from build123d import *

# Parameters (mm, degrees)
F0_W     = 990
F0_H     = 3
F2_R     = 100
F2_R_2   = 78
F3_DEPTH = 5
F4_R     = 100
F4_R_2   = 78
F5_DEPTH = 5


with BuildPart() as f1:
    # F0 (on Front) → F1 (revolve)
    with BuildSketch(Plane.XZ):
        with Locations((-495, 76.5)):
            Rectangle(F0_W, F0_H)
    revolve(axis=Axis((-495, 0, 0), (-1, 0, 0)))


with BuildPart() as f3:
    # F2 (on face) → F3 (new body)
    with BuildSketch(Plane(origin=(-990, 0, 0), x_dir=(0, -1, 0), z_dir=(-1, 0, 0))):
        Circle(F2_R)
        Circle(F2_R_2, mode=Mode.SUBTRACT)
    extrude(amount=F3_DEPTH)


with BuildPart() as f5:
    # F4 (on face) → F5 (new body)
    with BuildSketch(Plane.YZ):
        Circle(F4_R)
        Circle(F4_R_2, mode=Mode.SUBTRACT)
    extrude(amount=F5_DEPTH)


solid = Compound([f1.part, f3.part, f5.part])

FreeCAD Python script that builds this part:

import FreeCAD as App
import Part
import Sketcher


def add_polygon(sketch, points):
    """Adds a closed chain of lines whose ends are joined by coincident constraints."""
    first, n = sketch.GeometryCount, len(points)
    for a, b in zip(points, points[1:] + points[:1]):
        sketch.addGeometry(Part.LineSegment(App.Vector(*a, 0), App.Vector(*b, 0)), False)
    for i in range(n):
        sketch.addConstraint(Sketcher.Constraint("Coincident", first + i, 2, first + (i + 1) % n, 1))

doc = App.newDocument("Part")
body = doc.addObject("PartDesign::Body", "Body")

# Sketch on XZ plane
sketch1 = doc.addObject("Sketcher::SketchObject", "Sketch")
body.addObject(sketch1)
sketch1.AttachmentSupport = (doc.XZ_Plane, [""])
sketch1.MapMode = "FlatFace"
add_polygon(sketch1, [(-990, 78), (-990, 75), (0, 75), (0, 78)])  # lines 0-3
sketch1.addConstraint(Sketcher.Constraint("Vertical", 0))
sketch1.addConstraint(Sketcher.Constraint("Horizontal", 1))
sketch1.addConstraint(Sketcher.Constraint("Vertical", 2))
sketch1.addConstraint(Sketcher.Constraint("Horizontal", 3))
sketch1.addConstraint(Sketcher.Constraint("PointOnObject", 1, 2, -2))
sketch1.addConstraint(Sketcher.Constraint("DistanceX", 1, 1, 1, 2, 990.0))
sketch1.addConstraint(Sketcher.Constraint("DistanceY", 0, 2, 0, 1, 3.0))
sketch1.addConstraint(Sketcher.Constraint("DistanceY", -1, 1, 0, 2, 75.0))
revolution = doc.addObject("PartDesign::Revolution", "Revolution")
body.addObject(revolution)
revolution.Profile = sketch1
revolution.ReferenceAxis = (sketch1, ["H_Axis"])
revolution.Angle = 360
body2 = doc.addObject("PartDesign::Body", "Body001")

# Sketch on YZ plane
sketch2 = doc.addObject("Sketcher::SketchObject", "Sketch001")
body2.addObject(sketch2)
sketch2.AttachmentSupport = (doc.getObject("YZ_Plane001"), [""])
sketch2.MapMode = "FlatFace"
sketch2.AttachmentOffset = App.Placement(App.Vector(0, 0, -990), App.Rotation())
sketch2.addGeometry(Part.Circle(App.Vector(0, 0, 0), App.Vector(0, 0, 1), 100), False)
sketch2.addGeometry(Part.Circle(App.Vector(0, 0, 0), App.Vector(0, 0, 1), 78), False)
sketch2.addConstraint(Sketcher.Constraint("Coincident", 0, 3, -1, 1))
sketch2.addConstraint(Sketcher.Constraint("Coincident", 1, 3, -1, 1))
sketch2.addConstraint(Sketcher.Constraint("Diameter", 0, 200.0))
sketch2.addConstraint(Sketcher.Constraint("Diameter", 1, 156.0))
pad1 = doc.addObject("PartDesign::Pad", "Pad")
body2.addObject(pad1)
pad1.Profile = sketch2
pad1.Length = 5
pad1.Reversed = True
body3 = doc.addObject("PartDesign::Body", "Body002")

# Sketch on YZ plane
sketch3 = doc.addObject("Sketcher::SketchObject", "Sketch002")
body3.addObject(sketch3)
sketch3.AttachmentSupport = (doc.getObject("YZ_Plane002"), [""])
sketch3.MapMode = "FlatFace"
sketch3.addGeometry(Part.Circle(App.Vector(0, 0, 0), App.Vector(0, 0, 1), 100), False)
sketch3.addGeometry(Part.Circle(App.Vector(0, 0, 0), App.Vector(0, 0, 1), 78), False)
sketch3.addConstraint(Sketcher.Constraint("Coincident", 0, 3, -1, 1))
sketch3.addConstraint(Sketcher.Constraint("Coincident", 1, 3, -1, 1))
sketch3.addConstraint(Sketcher.Constraint("Diameter", 0, 200.0))
sketch3.addConstraint(Sketcher.Constraint("Diameter", 1, 156.0))
pad2 = doc.addObject("PartDesign::Pad", "Pad001")
body3.addObject(pad2)
pad2.Profile = sketch3
pad2.Length = 5

doc.recompute()
